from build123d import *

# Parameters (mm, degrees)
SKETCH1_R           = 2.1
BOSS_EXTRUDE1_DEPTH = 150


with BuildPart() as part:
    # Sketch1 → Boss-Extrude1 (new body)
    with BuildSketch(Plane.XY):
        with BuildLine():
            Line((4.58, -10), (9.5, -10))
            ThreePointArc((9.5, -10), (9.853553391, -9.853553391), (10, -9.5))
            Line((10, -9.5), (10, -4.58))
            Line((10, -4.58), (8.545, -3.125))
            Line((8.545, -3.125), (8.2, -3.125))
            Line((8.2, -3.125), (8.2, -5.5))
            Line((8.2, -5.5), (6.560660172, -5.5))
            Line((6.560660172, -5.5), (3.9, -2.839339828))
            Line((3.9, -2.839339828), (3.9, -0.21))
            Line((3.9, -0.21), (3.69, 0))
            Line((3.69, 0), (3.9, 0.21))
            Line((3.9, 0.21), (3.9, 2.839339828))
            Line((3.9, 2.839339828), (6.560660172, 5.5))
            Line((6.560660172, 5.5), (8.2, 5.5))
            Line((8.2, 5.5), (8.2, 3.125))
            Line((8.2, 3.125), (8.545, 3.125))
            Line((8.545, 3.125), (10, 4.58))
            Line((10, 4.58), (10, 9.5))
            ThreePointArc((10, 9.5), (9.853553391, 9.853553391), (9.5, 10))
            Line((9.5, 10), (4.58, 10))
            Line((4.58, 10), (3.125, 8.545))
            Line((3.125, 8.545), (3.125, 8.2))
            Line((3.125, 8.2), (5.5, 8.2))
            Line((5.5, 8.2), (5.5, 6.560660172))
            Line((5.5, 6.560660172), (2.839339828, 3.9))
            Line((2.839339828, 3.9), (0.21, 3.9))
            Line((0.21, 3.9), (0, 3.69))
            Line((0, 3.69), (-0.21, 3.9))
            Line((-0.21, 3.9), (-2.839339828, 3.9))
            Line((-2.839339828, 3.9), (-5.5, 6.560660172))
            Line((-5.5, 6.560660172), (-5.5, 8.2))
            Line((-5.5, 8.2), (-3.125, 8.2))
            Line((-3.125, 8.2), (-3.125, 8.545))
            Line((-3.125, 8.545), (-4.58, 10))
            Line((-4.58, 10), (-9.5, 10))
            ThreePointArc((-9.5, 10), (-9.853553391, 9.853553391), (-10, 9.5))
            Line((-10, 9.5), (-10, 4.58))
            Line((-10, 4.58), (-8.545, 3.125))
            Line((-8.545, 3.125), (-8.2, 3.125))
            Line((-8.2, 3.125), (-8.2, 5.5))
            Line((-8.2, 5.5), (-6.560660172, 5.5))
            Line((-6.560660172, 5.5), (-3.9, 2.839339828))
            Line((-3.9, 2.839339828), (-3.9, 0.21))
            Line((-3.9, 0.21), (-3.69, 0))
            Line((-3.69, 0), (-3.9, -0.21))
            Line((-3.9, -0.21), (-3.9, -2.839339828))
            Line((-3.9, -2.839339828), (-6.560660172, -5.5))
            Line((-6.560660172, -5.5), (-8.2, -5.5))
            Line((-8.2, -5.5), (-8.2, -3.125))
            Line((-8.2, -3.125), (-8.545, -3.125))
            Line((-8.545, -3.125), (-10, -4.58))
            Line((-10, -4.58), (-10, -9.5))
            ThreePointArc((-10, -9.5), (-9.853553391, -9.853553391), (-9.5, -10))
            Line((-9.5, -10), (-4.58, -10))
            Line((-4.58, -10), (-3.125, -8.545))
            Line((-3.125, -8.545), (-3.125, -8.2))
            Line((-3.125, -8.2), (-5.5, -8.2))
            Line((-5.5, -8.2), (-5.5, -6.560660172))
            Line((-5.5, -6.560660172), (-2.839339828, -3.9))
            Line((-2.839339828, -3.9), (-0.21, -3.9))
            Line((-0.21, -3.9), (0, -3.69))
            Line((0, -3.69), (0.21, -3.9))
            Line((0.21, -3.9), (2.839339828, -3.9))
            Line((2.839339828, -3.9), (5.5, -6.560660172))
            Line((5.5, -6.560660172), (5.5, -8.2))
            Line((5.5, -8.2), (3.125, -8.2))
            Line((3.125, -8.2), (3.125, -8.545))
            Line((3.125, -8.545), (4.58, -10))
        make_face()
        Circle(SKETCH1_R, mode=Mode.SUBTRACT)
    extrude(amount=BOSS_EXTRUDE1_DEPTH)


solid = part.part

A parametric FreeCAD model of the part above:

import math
import FreeCAD as App
import Part
import Sketcher
Q = App.Units.Quantity

doc = App.newDocument("Part")
body = doc.addObject("PartDesign::Body", "Body")

sketch1 = doc.addObject("Sketcher::SketchObject", "Sketch")
body.addObject(sketch1)
sketch1.AttachmentSupport = (doc.XY_Plane, [""])
sketch1.MapMode = "FlatFace"
sketch1.addGeometry(Part.LineSegment(App.Vector(4.58, -10, 0), App.Vector(9.5, -10, 0)), False)
sketch1.addGeometry(Part.ArcOfCircle(Part.Circle(App.Vector(9.5, -9.5, 0), App.Vector(0, 0, 1), 0.5), math.radians(-90), math.radians(0)), False)
sketch1.addGeometry(Part.LineSegment(App.Vector(10, -9.5, 0), App.Vector(10, -4.58, 0)), False)
sketch1.addGeometry(Part.LineSegment(App.Vector(10, -4.58, 0), App.Vector(8.54, -3.12, 0)), False)
sketch1.addGeometry(Part.LineSegment(App.Vector(8.54, -3.12, 0), App.Vector(8.2, -3.12, 0)), False)
sketch1.addGeometry(Part.LineSegment(App.Vector(8.2, -3.12, 0), App.Vector(8.2, -5.5, 0)), False)
sketch1.addGeometry(Part.LineSegment(App.Vector(8.2, -5.5, 0), App.Vector(6.56, -5.5, 0)), False)
sketch1.addGeometry(Part.LineSegment(App.Vector(6.56, -5.5, 0), App.Vector(3.9, -2.84, 0)), False)
sketch1.addGeometry(Part.LineSegment(App.Vector(3.9, -2.84, 0), App.Vector(3.9, -0.21, 0)), False)
sketch1.addGeometry(Part.LineSegment(App.Vector(3.9, -0.21, 0), App.Vector(3.69, 0, 0)), False)
sketch1.addGeometry(Part.LineSegment(App.Vector(3.69, 0, 0), App.Vector(3.9, 0.21, 0)), False)
sketch1.addGeometry(Part.LineSegment(App.Vector(3.9, 0.21, 0), App.Vector(3.9, 2.84, 0)), False)
sketch1.addGeometry(Part.LineSegment(App.Vector(3.9, 2.84, 0), App.Vector(6.56, 5.5, 0)), False)
sketch1.addGeometry(Part.LineSegment(App.Vector(6.56, 5.5, 0), App.Vector(8.2, 5.5, 0)), False)
sketch1.addGeometry(Part.LineSegment(App.Vector(8.2, 5.5, 0), App.Vector(8.2, 3.12, 0)), False)
sketch1.addGeometry(Part.LineSegment(App.Vector(8.2, 3.12, 0), App.Vector(8.54, 3.12, 0)), False)
sketch1.addGeometry(Part.LineSegment(App.Vector(8.54, 3.12, 0), App.Vector(10, 4.58, 0)), False)
sketch1.addGeometry(Part.LineSegment(App.Vector(10, 4.58, 0), App.Vector(10, 9.5, 0)), False)
sketch1.addGeometry(Part.ArcOfCircle(Part.Circle(App.Vector(9.5, 9.5, 0), App.Vector(0, 0, 1), 0.5), math.radians(0), math.radians(90)), False)
sketch1.addGeometry(Part.LineSegment(App.Vector(9.5, 10, 0), App.Vector(4.58, 10, 0)), False)
sketch1.addGeometry(Part.LineSegment(App.Vector(4.58, 10, 0), App.Vector(3.12, 8.54, 0)), False)
sketch1.addGeometry(Part.LineSegment(App.Vector(3.12, 8.54, 0), App.Vector(3.12, 8.2, 0)), False)
sketch1.addGeometry(Part.LineSegment(App.Vector(3.12, 8.2, 0), App.Vector(5.5, 8.2, 0)), False)
sketch1.addGeometry(Part.LineSegment(App.Vector(5.5, 8.2, 0), App.Vector(5.5, 6.56, 0)), False)
sketch1.addGeometry(Part.LineSegment(App.Vector(5.5, 6.56, 0), App.Vector(2.84, 3.9, 0)), False)
sketch1.addGeometry(Part.LineSegment(App.Vector(2.84, 3.9, 0), App.Vector(0.21, 3.9, 0)), False)
sketch1.addGeometry(Part.LineSegment(App.Vector(0.21, 3.9, 0), App.Vector(0, 3.69, 0)), False)
sketch1.addGeometry(Part.LineSegment(App.Vector(0, 3.69, 0), App.Vector(-0.21, 3.9, 0)), False)
sketch1.addGeometry(Part.LineSegment(App.Vector(-0.21, 3.9, 0), App.Vector(-2.84, 3.9, 0)), False)
sketch1.addGeometry(Part.LineSegment(App.Vector(-2.84, 3.9, 0), App.Vector(-5.5, 6.56, 0)), False)
sketch1.addGeometry(Part.LineSegment(App.Vector(-5.5, 6.56, 0), App.Vector(-5.5, 8.2, 0)), False)
sketch1.addGeometry(Part.LineSegment(App.Vector(-5.5, 8.2, 0), App.Vector(-3.12, 8.2, 0)), False)
sketch1.addGeometry(Part.LineSegment(App.Vector(-3.12, 8.2, 0), App.Vector(-3.12, 8.54, 0)), False)
sketch1.addGeometry(Part.LineSegment(App.Vector(-3.12, 8.54, 0), App.Vector(-4.58, 10, 0)), False)
sketch1.addGeometry(Part.LineSegment(App.Vector(-4.58, 10, 0), App.Vector(-9.5, 10, 0)), False)
sketch1.addGeometry(Part.ArcOfCircle(Part.Circle(App.Vector(-9.5, 9.5, 0), App.Vector(0, 0, 1), 0.5), math.radians(90), math.radians(180)), False)
sketch1.addGeometry(Part.LineSegment(App.Vector(-10, 9.5, 0), App.Vector(-10, 4.58, 0)), False)
sketch1.addGeometry(Part.LineSegment(App.Vector(-10, 4.58, 0), App.Vector(-8.54, 3.12, 0)), False)
sketch1.addGeometry(Part.LineSegment(App.Vector(-8.54, 3.12, 0), App.Vector(-8.2, 3.12, 0)), False)
sketch1.addGeometry(Part.LineSegment(App.Vector(-8.2, 3.12, 0), App.Vector(-8.2, 5.5, 0)), False)
sketch1.addGeometry(Part.LineSegment(App.Vector(-8.2, 5.5, 0), App.Vector(-6.56, 5.5, 0)), False)
sketch1.addGeometry(Part.LineSegment(App.Vector(-6.56, 5.5, 0), App.Vector(-3.9, 2.84, 0)), False)
sketch1.addGeometry(Part.LineSegment(App.Vector(-3.9, 2.84, 0), App.Vector(-3.9, 0.21, 0)), False)
sketch1.addGeometry(Part.LineSegment(App.Vector(-3.9, 0.21, 0), App.Vector(-3.69, 0, 0)), False)
sketch1.addGeometry(Part.LineSegment(App.Vector(-3.69, 0, 0), App.Vector(-3.9, -0.21, 0)), False)
sketch1.addGeometry(Part.LineSegment(App.Vector(-3.9, -0.21, 0), App.Vector(-3.9, -2.84, 0)), False)
sketch1.addGeometry(Part.LineSegment(App.Vector(-3.9, -2.84, 0), App.Vector(-6.56, -5.5, 0)), False)
sketch1.addGeometry(Part.LineSegment(App.Vector(-6.56, -5.5, 0), App.Vector(-8.2, -5.5, 0)), False)
sketch1.addGeometry(Part.LineSegment(App.Vector(-8.2, -5.5, 0), App.Vector(-8.2, -3.12, 0)), False)
sketch1.addGeometry(Part.LineSegment(App.Vector(-8.2, -3.12, 0), App.Vector(-8.54, -3.12, 0)), False)
sketch1.addGeometry(Part.LineSegment(App.Vector(-8.54, -3.12, 0), App.Vector(-10, -4.58, 0)), False)
sketch1.addGeometry(Part.LineSegment(App.Vector(-10, -4.58, 0), App.Vector(-10, -9.5, 0)), False)
sketch1.addGeometry(Part.ArcOfCircle(Part.Circle(App.Vector(-9.5, -9.5, 0), App.Vector(0, 0, 1), 0.5), math.radians(180), math.radians(270)), False)
sketch1.addGeometry(Part.LineSegment(App.Vector(-9.5, -10, 0), App.Vector(-4.58, -10, 0)), False)
sketch1.addGeometry(Part.LineSegment(App.Vector(-4.58, -10, 0), App.Vector(-3.12, -8.54, 0)), False)
sketch1.addGeometry(Part.LineSegment(App.Vector(-3.12, -8.54, 0), App.Vector(-3.12, -8.2, 0)), False)
sketch1.addGeometry(Part.LineSegment(App.Vector(-3.12, -8.2, 0), App.Vector(-5.5, -8.2, 0)), False)
sketch1.addGeometry(Part.LineSegment(App.Vector(-5.5, -8.2, 0), App.Vector(-5.5, -6.56, 0)), False)
sketch1.addGeometry(Part.LineSegment(App.Vector(-5.5, -6.56, 0), App.Vector(-2.84, -3.9, 0)), False)
sketch1.addGeometry(Part.LineSegment(App.Vector(-2.84, -3.9, 0), App.Vector(-0.21, -3.9, 0)), False)
sketch1.addGeometry(Part.LineSegment(App.Vector(-0.21, -3.9, 0), App.Vector(0, -3.69, 0)), False)
sketch1.addGeometry(Part.LineSegment(App.Vector(0, -3.69, 0), App.Vector(0.21, -3.9, 0)), False)
sketch1.addGeometry(Part.LineSegment(App.Vector(0.21, -3.9, 0), App.Vector(2.84, -3.9, 0)), False)
sketch1.addGeometry(Part.LineSegment(App.Vector(2.84, -3.9, 0), App.Vector(5.5, -6.56, 0)), False)
sketch1.addGeometry(Part.LineSegment(App.Vector(5.5, -6.56, 0), App.Vector(5.5, -8.2, 0)), False)
sketch1.addGeometry(Part.LineSegment(App.Vector(5.5, -8.2, 0), App.Vector(3.12, -8.2, 0)), False)
sketch1.addGeometry(Part.LineSegment(App.Vector(3.12, -8.2, 0), App.Vector(3.12, -8.54, 0)), False)
sketch1.addGeometry(Part.LineSegment(App.Vector(3.12, -8.54, 0), App.Vector(4.58, -10, 0)), False)
sketch1.addGeometry(Part.Circle(App.Vector(0, 0, 0), App.Vector(0, 0, 1), 2.1), False)
sketch1.addConstraint(Sketcher.Constraint("Tangent", 0, 2, 1, 1))
sketch1.addConstraint(Sketcher.Constraint("Tangent", 1, 2, 2, 1))
sketch1.addConstraint(Sketcher.Constraint("Coincident", 2, 2, 3, 1))
sketch1.addConstraint(Sketcher.Constraint("Coincident", 3, 2, 4, 1))
sketch1.addConstraint(Sketcher.Constraint("Coincident", 4, 2, 5, 1))
sketch1.addConstraint(Sketcher.Constraint("Coincident", 5, 2, 6, 1))
sketch1.addConstraint(Sketcher.Constraint("Coincident", 6, 2, 7, 1))
sketch1.addConstraint(Sketcher.Constraint("Coincident", 7, 2, 8, 1))
sketch1.addConstraint(Sketcher.Constraint("Coincident", 8, 2, 9, 1))
sketch1.addConstraint(Sketcher.Constraint("Coincident", 9, 2, 10, 1))
sketch1.addConstraint(Sketcher.Constraint("Coincident", 10, 2, 11, 1))
sketch1.addConstraint(Sketcher.Constraint("Coincident", 11, 2, 12, 1))
sketch1.addConstraint(Sketcher.Constraint("Coincident", 12, 2, 13, 1))
sketch1.addConstraint(Sketcher.Constraint("Coincident", 13, 2, 14, 1))
sketch1.addConstraint(Sketcher.Constraint("Coincident", 14, 2, 15, 1))
sketch1.addConstraint(Sketcher.Constraint("Coincident", 15, 2, 16, 1))
sketch1.addConstraint(Sketcher.Constraint("Coincident", 16, 2, 17, 1))
sketch1.addConstraint(Sketcher.Constraint("Tangent", 17, 2, 18, 1))
sketch1.addConstraint(Sketcher.Constraint("Tangent", 18, 2, 19, 1))
sketch1.addConstraint(Sketcher.Constraint("Coincident", 19, 2, 20, 1))
sketch1.addConstraint(Sketcher.Constraint("Coincident", 20, 2, 21, 1))
sketch1.addConstraint(Sketcher.Constraint("Coincident", 21, 2, 22, 1))
sketch1.addConstraint(Sketcher.Constraint("Coincident", 22, 2, 23, 1))
sketch1.addConstraint(Sketcher.Constraint("Coincident", 23, 2, 24, 1))
sketch1.addConstraint(Sketcher.Constraint("Coincident", 24, 2, 25, 1))
sketch1.addConstraint(Sketcher.Constraint("Coincident", 25, 2, 26, 1))
sketch1.addConstraint(Sketcher.Constraint("Coincident", 26, 2, 27, 1))
sketch1.addConstraint(Sketcher.Constraint("Coincident", 27, 2, 28, 1))
sketch1.addConstraint(Sketcher.Constraint("Coincident", 28, 2, 29, 1))
sketch1.addConstraint(Sketcher.Constraint("Coincident", 29, 2, 30, 1))
sketch1.addConstraint(Sketcher.Constraint("Coincident", 30, 2, 31, 1))
sketch1.addConstraint(Sketcher.Constraint("Coincident", 31, 2, 32, 1))
sketch1.addConstraint(Sketcher.Constraint("Coincident", 32, 2, 33, 1))
sketch1.addConstraint(Sketcher.Constraint("Coincident", 33, 2, 34, 1))
sketch1.addConstraint(Sketcher.Constraint("Tangent", 34, 2, 35, 1))
sketch1.addConstraint(Sketcher.Constraint("Tangent", 35, 2, 36, 1))
sketch1.addConstraint(Sketcher.Constraint("Coincident", 36, 2, 37, 1))
sketch1.addConstraint(Sketcher.Constraint("Coincident", 37, 2, 38, 1))
sketch1.addConstraint(Sketcher.Constraint("Coincident", 38, 2, 39, 1))
sketch1.addConstraint(Sketcher.Constraint("Coincident", 39, 2, 40, 1))
sketch1.addConstraint(Sketcher.Constraint("Coincident", 40, 2, 41, 1))
sketch1.addConstraint(Sketcher.Constraint("Coincident", 41, 2, 42, 1))
sketch1.addConstraint(Sketcher.Constraint("Coincident", 42, 2, 43, 1))
sketch1.addConstraint(Sketcher.Constraint("Coincident", 43, 2, 44, 1))
sketch1.addConstraint(Sketcher.Constraint("Coincident", 44, 2, 45, 1))
sketch1.addConstraint(Sketcher.Constraint("Coincident", 45, 2, 46, 1))
sketch1.addConstraint(Sketcher.Constraint("Coincident", 46, 2, 47, 1))
sketch1.addConstraint(Sketcher.Constraint("Coincident", 47, 2, 48, 1))
sketch1.addConstraint(Sketcher.Constraint("Coincident", 48, 2, 49, 1))
sketch1.addConstraint(Sketcher.Constraint("Coincident", 49, 2, 50, 1))
sketch1.addConstraint(Sketcher.Constraint("Coincident", 50, 2, 51, 1))
sketch1.addConstraint(Sketcher.Constraint("Tangent", 51, 2, 52, 1))
sketch1.addConstraint(Sketcher.Constraint("Tangent", 52, 2, 53, 1))
sketch1.addConstraint(Sketcher.Constraint("Coincident", 53, 2, 54, 1))
sketch1.addConstraint(Sketcher.Constraint("Coincident", 54, 2, 55, 1))
sketch1.addConstraint(Sketcher.Constraint("Coincident", 55, 2, 56, 1))
sketch1.addConstraint(Sketcher.Constraint("Coincident", 56, 2, 57, 1))
sketch1.addConstraint(Sketcher.Constraint("Coincident", 57, 2, 58, 1))
sketch1.addConstraint(Sketcher.Constraint("Coincident", 58, 2, 59, 1))
sketch1.addConstraint(Sketcher.Constraint("Coincident", 59, 2, 60, 1))
sketch1.addConstraint(Sketcher.Constraint("Coincident", 60, 2, 61, 1))
sketch1.addConstraint(Sketcher.Constraint("Coincident", 61, 2, 62, 1))
sketch1.addConstraint(Sketcher.Constraint("Coincident", 62, 2, 63, 1))
sketch1.addConstraint(Sketcher.Constraint("Coincident", 63, 2, 64, 1))
sketch1.addConstraint(Sketcher.Constraint("Coincident", 64, 2, 65, 1))
sketch1.addConstraint(Sketcher.Constraint("Coincident", 65, 2, 66, 1))
sketch1.addConstraint(Sketcher.Constraint("Coincident", 66, 2, 67, 1))
sketch1.addConstraint(Sketcher.Constraint("Coincident", 67, 2, 0, 1))
sketch1.addConstraint(Sketcher.Constraint("Horizontal", 0))
sketch1.addConstraint(Sketcher.Constraint("Vertical", 2))
sketch1.addConstraint(Sketcher.Constraint("Horizontal", 4))
sketch1.addConstraint(Sketcher.Constraint("Vertical", 5))
sketch1.addConstraint(Sketcher.Constraint("Horizontal", 6))
sketch1.addConstraint(Sketcher.Constraint("Vertical", 8))
sketch1.addConstraint(Sketcher.Constraint("Vertical", 11))
sketch1.addConstraint(Sketcher.Constraint("Horizontal", 13))
sketch1.addConstraint(Sketcher.Constraint("Vertical", 14))
sketch1.addConstraint(Sketcher.Constraint("Horizontal", 15))
sketch1.addConstraint(Sketcher.Constraint("Vertical", 17))
sketch1.addConstraint(Sketcher.Constraint("Horizontal", 19))
sketch1.addConstraint(Sketcher.Constraint("Vertical", 21))
sketch1.addConstraint(Sketcher.Constraint("Horizontal", 22))
sketch1.addConstraint(Sketcher.Constraint("Vertical", 23))
sketch1.addConstraint(Sketcher.Constraint("Horizontal", 25))
sketch1.addConstraint(Sketcher.Constraint("Horizontal", 28))
sketch1.addConstraint(Sketcher.Constraint("Vertical", 30))
sketch1.addConstraint(Sketcher.Constraint("Horizontal", 31))
sketch1.addConstraint(Sketcher.Constraint("Vertical", 32))
sketch1.addConstraint(Sketcher.Constraint("Horizontal", 34))
sketch1.addConstraint(Sketcher.Constraint("Vertical", 36))
sketch1.addConstraint(Sketcher.Constraint("Horizontal", 38))
sketch1.addConstraint(Sketcher.Constraint("Vertical", 39))
sketch1.addConstraint(Sketcher.Constraint("Horizontal", 40))
sketch1.addConstraint(Sketcher.Constraint("Vertical", 42))
sketch1.addConstraint(Sketcher.Constraint("Vertical", 45))
sketch1.addConstraint(Sketcher.Constraint("Horizontal", 47))
sketch1.addConstraint(Sketcher.Constraint("Vertical", 48))
sketch1.addConstraint(Sketcher.Constraint("Horizontal", 49))
sketch1.addConstraint(Sketcher.Constraint("Vertical", 51))
sketch1.addConstraint(Sketcher.Constraint("Horizontal", 53))
sketch1.addConstraint(Sketcher.Constraint("Vertical", 55))
sketch1.addConstraint(Sketcher.Constraint("Horizontal", 56))
sketch1.addConstraint(Sketcher.Constraint("Vertical", 57))
sketch1.addConstraint(Sketcher.Constraint("Horizontal", 59))
sketch1.addConstraint(Sketcher.Constraint("Horizontal", 62))
sketch1.addConstraint(Sketcher.Constraint("Vertical", 64))
sketch1.addConstraint(Sketcher.Constraint("Horizontal", 65))
sketch1.addConstraint(Sketcher.Constraint("Vertical", 66))
sketch1.addConstraint(Sketcher.Constraint("Coincident", 68, 3, -1, 1))
sketch1.addConstraint(Sketcher.Constraint("Equal", 1, 18))
sketch1.addConstraint(Sketcher.Constraint("Equal", 18, 35))
sketch1.addConstraint(Sketcher.Constraint("Equal", 35, 52))
sketch1.addConstraint(Sketcher.Constraint("Symmetric", 1, 3, 35, 3, -1, 1))
sketch1.addConstraint(Sketcher.Constraint("Symmetric", 18, 3, 52, 3, -1, 1))
sketch1.addConstraint(Sketcher.Constraint("Symmetric", 3, 2, 37, 2, -1, 1))
sketch1.addConstraint(Sketcher.Constraint("Symmetric", 5, 2, 39, 2, -1, 1))
sketch1.addConstraint(Sketcher.Constraint("Symmetric", 7, 2, 41, 2, -1, 1))
sketch1.addConstraint(Sketcher.Constraint("Symmetric", 9, 2, 43, 2, -1, 1))
sketch1.addConstraint(Sketcher.Constraint("Symmetric", 10, 2, 44, 2, -1, 1))
sketch1.addConstraint(Sketcher.Constraint("Symmetric", 12, 2, 46, 2, -1, 1))
sketch1.addConstraint(Sketcher.Constraint("Symmetric", 14, 2, 48, 2, -1, 1))
sketch1.addConstraint(Sketcher.Constraint("Symmetric", 20, 2, 54, 2, -1, 1))
sketch1.addConstraint(Sketcher.Constraint("Symmetric", 22, 2, 56, 2, -1, 1))
sketch1.addConstraint(Sketcher.Constraint("Symmetric", 24, 2, 58, 2, -1, 1))
sketch1.addConstraint(Sketcher.Constraint("Symmetric", 26, 2, 60, 2, -1, 1))
sketch1.addConstraint(Sketcher.Constraint("Symmetric", 27, 2, 61, 2, -1, 1))
sketch1.addConstraint(Sketcher.Constraint("Symmetric", 29, 2, 63, 2, -1, 1))
sketch1.addConstraint(Sketcher.Constraint("Symmetric", 31, 2, 65, 2, -1, 1))
sketch1.addConstraint(Sketcher.Constraint("Symmetric", 18, 3, 35, 3, -2))
sketch1.addConstraint(Sketcher.Constraint("Symmetric", 25, 2, 27, 2, -2))
sketch1.addConstraint(Sketcher.Constraint("Symmetric", 23, 2, 29, 2, -2))
sketch1.addConstraint(Sketcher.Constraint("Symmetric", 21, 2, 31, 2, -2))
sketch1.addConstraint(Sketcher.Constraint("Symmetric", 15, 2, 37, 2, -2))
sketch1.addConstraint(Sketcher.Constraint("Symmetric", 13, 2, 39, 2, -2))
sketch1.addConstraint(Sketcher.Constraint("Symmetric", 11, 2, 41, 2, -2))
sketch1.addConstraint(Sketcher.Constraint("PointOnObject", 9, 2, -1))
sketch1.addConstraint(Sketcher.Constraint("PointOnObject", 26, 2, -2))
sketch1.addConstraint(Sketcher.Constraint("Parallel", 3, 7))
sketch1.addConstraint(Sketcher.Constraint("Parallel", 7, 9))
sketch1.addConstraint(Sketcher.Constraint("Perpendicular", 9, 10))
sketch1.addConstraint(Sketcher.Constraint("Parallel", 10, 12))
sketch1.addConstraint(Sketcher.Constraint("Parallel", 12, 16))
sketch1.addConstraint(Sketcher.Constraint("Parallel", 16, 20))
sketch1.addConstraint(Sketcher.Constraint("Parallel", 20, 24))
sketch1.addConstraint(Sketcher.Constraint("Parallel", 24, 26))
sketch1.addConstraint(Sketcher.Constraint("Perpendicular", 26, 27))
sketch1.addConstraint(Sketcher.Constraint("Parallel", 27, 29))
sketch1.addConstraint(Sketcher.Constraint("Parallel", 29, 33))
sketch1.addConstraint(Sketcher.Constraint("Parallel", 33, 37))
sketch1.addConstraint(Sketcher.Constraint("Parallel", 37, 41))
sketch1.addConstraint(Sketcher.Constraint("Parallel", 41, 43))
sketch1.addConstraint(Sketcher.Constraint("Parallel", 44, 46))
sketch1.addConstraint(Sketcher.Constraint("Parallel", 46, 50))
sketch1.addConstraint(Sketcher.Constraint("Parallel", 50, 54))
sketch1.addConstraint(Sketcher.Constraint("Parallel", 54, 58))
sketch1.addConstraint(Sketcher.Constraint("Parallel", 58, 60))
sketch1.addConstraint(Sketcher.Constraint("Parallel", 61, 63))
sketch1.addConstraint(Sketcher.Constraint("Parallel", 63, 67))
sketch1.addConstraint(Sketcher.Constraint("Horizontal", 20, 2, 32, 2))
sketch1.addConstraint(Sketcher.Constraint("Horizontal", 2, 2, 50, 2))
sketch1.addConstraint(Sketcher.Constraint("Horizontal", 54, 2, 66, 2))
sketch1.addConstraint(Sketcher.Constraint("Equal", 53, 2))
sketch1.addConstraint(Sketcher.Constraint("Equal", 65, 5))
sketch1.addConstraint(Sketcher.Constraint("Equal", 62, 8))
sketch1.addConstraint(Sketcher.Constraint("Equal", 49, 21))
sketch1.addConstraint(Sketcher.Constraint("Equal", 47, 23))
sketch1.addConstraint(Sketcher.Constraint("Equal", 16, 20))
sketch1.addConstraint(Sketcher.Constraint("Equal", 12, 24))
sketch1.addConstraint(Sketcher.Constraint("Equal", 10, 26))
sketch1.addConstraint(Sketcher.Constraint("Diameter", 68, Q("4.2 mm")))
sketch1.addConstraint(Sketcher.Constraint("Radius", 1, Q("0.5 mm")))
sketch1.addConstraint(Sketcher.Constraint("DistanceY", 0, 2, -1, 1, Q("10 mm")))
sketch1.addConstraint(Sketcher.Constraint("DistanceX", 0, 1, 0, 2, Q("4.92 mm")))
sketch1.addConstraint(Sketcher.Constraint("DistanceX", -1, 1, 4, 2, Q("8.2 mm")))
sketch1.addConstraint(Sketcher.Constraint("DistanceY", 5, 2, -1, 1, Q("5.5 mm")))
sketch1.addConstraint(Sketcher.Constraint("DistanceX", -1, 1, 7, 2, Q("3.9 mm")))
sketch1.addConstraint(Sketcher.Constraint("DistanceX", 4, 2, 4, 1, Q("0.345 mm")))
sketch1.addConstraint(Sketcher.Constraint("DistanceY", 8, 2, -1, 1, Q("0.21 mm")))
sketch1.addConstraint(Sketcher.Constraint("DistanceX", 6, 2, 6, 1, Q("1.63934 mm")))
pad1 = doc.addObject("PartDesign::Pad", "Pad")
body.addObject(pad1)
pad1.Profile = sketch1
pad1.Length = 150

doc.recompute()
